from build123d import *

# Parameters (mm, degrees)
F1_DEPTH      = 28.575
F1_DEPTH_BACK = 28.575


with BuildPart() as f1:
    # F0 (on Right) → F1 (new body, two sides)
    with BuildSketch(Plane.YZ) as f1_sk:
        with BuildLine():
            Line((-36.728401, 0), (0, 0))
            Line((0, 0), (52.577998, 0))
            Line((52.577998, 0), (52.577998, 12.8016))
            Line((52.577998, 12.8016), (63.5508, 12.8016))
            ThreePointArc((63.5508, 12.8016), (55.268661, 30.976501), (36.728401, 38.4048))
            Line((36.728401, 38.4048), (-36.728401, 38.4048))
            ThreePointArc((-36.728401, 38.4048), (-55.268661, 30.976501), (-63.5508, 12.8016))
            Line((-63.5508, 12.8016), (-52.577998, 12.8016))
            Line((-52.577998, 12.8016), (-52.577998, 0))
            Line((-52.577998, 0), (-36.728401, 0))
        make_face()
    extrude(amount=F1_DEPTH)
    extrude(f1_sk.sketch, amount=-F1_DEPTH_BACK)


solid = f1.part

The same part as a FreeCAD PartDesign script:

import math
import FreeCAD as App
import Part
import Sketcher

V = App.Vector
Q = App.Units.Quantity

doc = App.newDocument("Part")
body = doc.addObject("PartDesign::Body", "Body")

# Sketch on YZ plane
sketch1 = body.newObject("Sketcher::SketchObject", "Sketch")
sketch1.AttachmentSupport = (doc.getObject("YZ_Plane"), [""])
sketch1.MapMode = "FlatFace"
sketch1.addGeometry([
    Part.LineSegment(V(53, 0, 0), V(53, 13, 0)),  # 0
    Part.LineSegment(V(53, 13, 0), V(64, 13, 0)),  # 1
    Part.ArcOfCircle(Part.Circle(V(37, 12, 0), V(0, 0, 1), 27), math.radians(3), math.radians(90)),  # 2
    Part.LineSegment(V(37, 38, 0), V(-37, 38, 0)),  # 3
    Part.ArcOfCircle(Part.Circle(V(-37, 12, 0), V(0, 0, 1), 27), math.radians(90), math.radians(177)),  # 4
    Part.LineSegment(V(-64, 13, 0), V(-53, 13, 0)),  # 5
    Part.LineSegment(V(-53, 13, 0), V(-53, 0, 0)),  # 6
    Part.LineSegment(V(-53, 0, 0), V(53, 0, 0)),  # 7
], False)
sketch1.addConstraint([
    Sketcher.Constraint("Coincident", 0, 2, 1, 1),
    Sketcher.Constraint("Coincident", 1, 2, 2, 1),
    Sketcher.Constraint("Tangent", 2, 2, 3, 1),
    Sketcher.Constraint("Tangent", 3, 2, 4, 1),
    Sketcher.Constraint("Coincident", 4, 2, 5, 1),
    Sketcher.Constraint("Coincident", 5, 2, 6, 1),
    Sketcher.Constraint("Coincident", 6, 2, 7, 1),
    Sketcher.Constraint("Coincident", 7, 2, 0, 1),
    Sketcher.Constraint("Vertical", 0),
    Sketcher.Constraint("Horizontal", 1),
    Sketcher.Constraint("Horizontal", 3),
    Sketcher.Constraint("Horizontal", 5),
    Sketcher.Constraint("Vertical", 6),
    Sketcher.Constraint("Horizontal", 7),
    Sketcher.Constraint("Equal", 2, 4),
    Sketcher.Constraint("Symmetric", 6, 2, 7, 2, -1, 1),
    Sketcher.Constraint("Symmetric", 1, 2, 4, 2, -2),
    Sketcher.Constraint("DistanceX", 7, 1, 7, 2, Q("4.1399998 in")),
    Sketcher.Constraint("DistanceX", 1, 1, 1, 2, Q("0.4320001 in")),
    Sketcher.Constraint("DistanceX", 3, 2, 3, 1, Q("2.8920001 in")),
    Sketcher.Constraint("DistanceY", 0, 1, 0, 2, Q("0.504 in")),
    Sketcher.Constraint("DistanceY", -1, 1, 2, 2, Q("1.512 in")),
])
pad1 = body.newObject("PartDesign::Pad", "Pad")
pad1.Profile = sketch1
pad1.Type = "TwoLengths"
pad1.Length = Q("1.125 in")
pad1.Length2 = Q("1.125 in")

doc.recompute()
